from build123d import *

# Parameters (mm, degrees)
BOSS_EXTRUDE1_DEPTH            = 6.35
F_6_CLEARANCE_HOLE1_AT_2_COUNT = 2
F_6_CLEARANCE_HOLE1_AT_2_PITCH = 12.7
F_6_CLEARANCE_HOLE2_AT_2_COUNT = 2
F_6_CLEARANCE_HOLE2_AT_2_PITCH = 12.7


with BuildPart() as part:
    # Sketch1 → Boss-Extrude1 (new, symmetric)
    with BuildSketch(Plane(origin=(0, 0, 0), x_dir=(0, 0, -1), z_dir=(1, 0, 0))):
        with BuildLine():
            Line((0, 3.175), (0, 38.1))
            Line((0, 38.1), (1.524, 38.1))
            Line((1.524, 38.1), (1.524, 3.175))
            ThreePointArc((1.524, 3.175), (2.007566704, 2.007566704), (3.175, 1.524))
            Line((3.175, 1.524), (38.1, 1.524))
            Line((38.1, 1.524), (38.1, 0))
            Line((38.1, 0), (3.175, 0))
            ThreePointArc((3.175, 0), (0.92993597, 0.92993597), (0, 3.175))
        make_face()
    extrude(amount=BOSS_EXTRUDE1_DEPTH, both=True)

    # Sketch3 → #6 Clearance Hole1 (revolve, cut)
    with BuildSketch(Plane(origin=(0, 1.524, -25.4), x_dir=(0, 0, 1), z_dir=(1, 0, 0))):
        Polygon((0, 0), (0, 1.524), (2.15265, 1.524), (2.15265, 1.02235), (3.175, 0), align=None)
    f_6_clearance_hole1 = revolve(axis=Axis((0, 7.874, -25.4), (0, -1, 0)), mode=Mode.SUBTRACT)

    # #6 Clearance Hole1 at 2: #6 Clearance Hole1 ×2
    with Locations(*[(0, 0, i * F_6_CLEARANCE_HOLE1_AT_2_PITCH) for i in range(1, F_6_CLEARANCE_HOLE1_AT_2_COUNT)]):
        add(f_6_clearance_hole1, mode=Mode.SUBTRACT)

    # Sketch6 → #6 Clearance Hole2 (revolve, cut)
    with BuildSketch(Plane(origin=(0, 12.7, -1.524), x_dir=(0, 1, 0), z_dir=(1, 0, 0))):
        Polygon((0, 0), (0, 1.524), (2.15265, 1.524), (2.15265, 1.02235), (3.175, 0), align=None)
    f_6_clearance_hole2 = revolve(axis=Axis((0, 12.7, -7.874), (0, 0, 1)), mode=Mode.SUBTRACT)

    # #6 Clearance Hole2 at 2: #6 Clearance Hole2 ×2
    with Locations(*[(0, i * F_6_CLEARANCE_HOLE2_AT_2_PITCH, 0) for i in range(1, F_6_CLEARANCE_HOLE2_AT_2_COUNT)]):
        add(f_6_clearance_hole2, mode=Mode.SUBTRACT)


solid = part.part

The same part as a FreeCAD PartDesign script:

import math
import FreeCAD as App
import Part
import Sketcher
Q = App.Units.Quantity


def add_polygon(sketch, points):
    """Adds a closed chain of lines whose ends are joined by coincident constraints."""
    first, n = sketch.GeometryCount, len(points)
    for a, b in zip(points, points[1:] + points[:1]):
        sketch.addGeometry(Part.LineSegment(App.Vector(*a, 0), App.Vector(*b, 0)), False)
    for i in range(n):
        sketch.addConstraint(Sketcher.Constraint("Coincident", first + i, 2, first + (i + 1) % n, 1))

doc = App.newDocument("Part")
body = doc.addObject("PartDesign::Body", "Body")

# Sketch on YZ plane
sketch1 = body.newObject("Sketcher::SketchObject", "Sketch")
sketch1.AttachmentSupport = (doc.getObject("YZ_Plane"), [""])
sketch1.MapMode = "FlatFace"
sketch1.addGeometry(Part.LineSegment(App.Vector(38.1, 0, 0), App.Vector(3.2, 0, 0)), False)
sketch1.addGeometry(Part.ArcOfCircle(Part.Circle(App.Vector(3.2, -3.2, 0), App.Vector(0, 0, 1), 3.2), math.radians(90), math.radians(180)), False)
sketch1.addGeometry(Part.LineSegment(App.Vector(0, -3.2, 0), App.Vector(0, -38.1, 0)), False)
sketch1.addGeometry(Part.LineSegment(App.Vector(0, -38.1, 0), App.Vector(1.5, -38.1, 0)), False)
sketch1.addGeometry(Part.LineSegment(App.Vector(1.5, -38.1, 0), App.Vector(1.5, -3.2, 0)), False)
sketch1.addGeometry(Part.ArcOfCircle(Part.Circle(App.Vector(3.2, -3.2, 0), App.Vector(0, 0, 1), 1.7), math.radians(90), math.radians(180)), False)
sketch1.addGeometry(Part.LineSegment(App.Vector(3.2, -1.5, 0), App.Vector(38.1, -1.5, 0)), False)
sketch1.addGeometry(Part.LineSegment(App.Vector(38.1, -1.5, 0), App.Vector(38.1, 0, 0)), False)
sketch1.addConstraint(Sketcher.Constraint("Tangent", 0, 2, 1, 1))
sketch1.addConstraint(Sketcher.Constraint("Tangent", 1, 2, 2, 1))
sketch1.addConstraint(Sketcher.Constraint("Coincident", 2, 2, 3, 1))
sketch1.addConstraint(Sketcher.Constraint("Coincident", 3, 2, 4, 1))
sketch1.addConstraint(Sketcher.Constraint("Tangent", 4, 2, 5, 2))
sketch1.addConstraint(Sketcher.Constraint("Tangent", 5, 1, 6, 1))
sketch1.addConstraint(Sketcher.Constraint("Coincident", 6, 2, 7, 1))
sketch1.addConstraint(Sketcher.Constraint("Coincident", 7, 2, 0, 1))
sketch1.addConstraint(Sketcher.Constraint("Horizontal", 0))
sketch1.addConstraint(Sketcher.Constraint("Vertical", 2))
sketch1.addConstraint(Sketcher.Constraint("Horizontal", 3))
sketch1.addConstraint(Sketcher.Constraint("Vertical", 4))
sketch1.addConstraint(Sketcher.Constraint("Horizontal", 6))
sketch1.addConstraint(Sketcher.Constraint("Vertical", 7))
sketch1.addConstraint(Sketcher.Constraint("Coincident", 5, 3, 1, 3))
sketch1.addConstraint(Sketcher.Constraint("PointOnObject", 0, 2, -1))
sketch1.addConstraint(Sketcher.Constraint("PointOnObject", 1, 2, -2))
sketch1.addConstraint(Sketcher.Constraint("Equal", 6, 2))
sketch1.addConstraint(Sketcher.Constraint("Radius", 1, Q("0.125 in")))
sketch1.addConstraint(Sketcher.Constraint("Radius", 5, Q("0.065 in")))
sketch1.addConstraint(Sketcher.Constraint("DistanceY", 2, 2, -1, 1, Q("1.5 in")))
pad1 = body.newObject("PartDesign::Pad", "Pad")
pad1.Profile = sketch1
pad1.Length = Q("0.5 in")
pad1.Midplane = True

# Sketch on YZ plane
sketch2 = body.newObject("Sketcher::SketchObject", "Sketch001")
sketch2.AttachmentSupport = (doc.getObject("YZ_Plane"), [""])
sketch2.MapMode = "FlatFace"
add_polygon(sketch2, [(0, -25.4), (1.5, -25.4), (1.5, -22.2), (0.5, -23.2), (0, -23.2)])  # lines 0-4
sketch2.addGeometry(Part.LineSegment(App.Vector(1.5, -25.4, 0), App.Vector(0, -25.4, 0)), True)  # axis
sketch2.addConstraint(Sketcher.Constraint("Horizontal", 0))
sketch2.addConstraint(Sketcher.Constraint("Vertical", 1))
sketch2.addConstraint(Sketcher.Constraint("Horizontal", 3))
sketch2.addConstraint(Sketcher.Constraint("Vertical", 4))
sketch2.addConstraint(Sketcher.Constraint("Horizontal", 5))
sketch2.addConstraint(Sketcher.Constraint("Coincident", 5, 1, 0, 2))
sketch2.addConstraint(Sketcher.Constraint("PointOnObject", 3, 2, -2))
sketch2.addConstraint(Sketcher.Constraint("PointOnObject", 5, 2, -2))
sketch2.addConstraint(Sketcher.Constraint("DistanceY", 0, 2, -1, 1, Q("1 in")))
sketch2.addConstraint(Sketcher.Constraint("Angle", 2, Q("-135 deg")))
sketch2.addConstraint(Sketcher.Constraint("DistanceX", 0, 1, 0, 2, Q("0.06 in")))
sketch2.addConstraint(Sketcher.Constraint("DistanceY", 1, 1, 1, 2, Q("0.125 in")))
sketch2.addConstraint(Sketcher.Constraint("DistanceX", 3, 2, 3, 1, Q("0.50165 mm")))
groove = body.newObject("PartDesign::Groove", "Groove")
groove.Profile = sketch2
groove.ReferenceAxis = (sketch2, ["Axis0"])
groove.Angle = 360
doc.recompute()

linearpattern = body.newObject("PartDesign::LinearPattern", "LinearPattern")
linearpattern.Originals = [groove]
linearpattern.Direction = (doc.getObject("Z_Axis"), [""])
linearpattern.Mode = "offset"
linearpattern.Offset = Q("0.5 in")
linearpattern.Occurrences = 2
body.Tip = linearpattern

# Sketch on YZ plane
sketch3 = body.newObject("Sketcher::SketchObject", "Sketch002")
sketch3.AttachmentSupport = (doc.getObject("YZ_Plane"), [""])
sketch3.MapMode = "FlatFace"
add_polygon(sketch3, [(12.7, 0), (12.7, -1.5), (15.9, -1.5), (14.9, -0.5), (14.9, 0)])  # lines 0-4
sketch3.addGeometry(Part.LineSegment(App.Vector(12.7, -1.5, 0), App.Vector(12.7, 0, 0)), True)  # axis
sketch3.addConstraint(Sketcher.Constraint("Vertical", 0))
sketch3.addConstraint(Sketcher.Constraint("Horizontal", 1))
sketch3.addConstraint(Sketcher.Constraint("Vertical", 3))
sketch3.addConstraint(Sketcher.Constraint("Horizontal", 4))
sketch3.addConstraint(Sketcher.Constraint("Vertical", 5))
sketch3.addConstraint(Sketcher.Constraint("Coincident", 5, 1, 0, 2))
sketch3.addConstraint(Sketcher.Constraint("PointOnObject", 3, 2, -1))
sketch3.addConstraint(Sketcher.Constraint("PointOnObject", 5, 2, -1))
sketch3.addConstraint(Sketcher.Constraint("Angle", 2, Q("135 deg")))
sketch3.addConstraint(Sketcher.Constraint("DistanceY", 0, 2, 0, 1, Q("0.06 in")))
sketch3.addConstraint(Sketcher.Constraint("DistanceX", -1, 1, 0, 2, Q("0.5 in")))
sketch3.addConstraint(Sketcher.Constraint("DistanceX", 1, 1, 1, 2, Q("0.125 in")))
sketch3.addConstraint(Sketcher.Constraint("DistanceX", 4, 2, 4, 1, Q("2.15265 mm")))
groove2 = body.newObject("PartDesign::Groove", "Groove001")
groove2.Profile = sketch3
groove2.ReferenceAxis = (sketch3, ["Axis0"])
groove2.Angle = 360
doc.recompute()

linearpattern2 = body.newObject("PartDesign::LinearPattern", "LinearPattern001")
linearpattern2.Originals = [groove2]
linearpattern2.Direction = (doc.getObject("Y_Axis"), [""])
linearpattern2.Mode = "offset"
linearpattern2.Offset = Q("0.5 in")
linearpattern2.Occurrences = 2
body.Tip = linearpattern2

doc.recompute()
